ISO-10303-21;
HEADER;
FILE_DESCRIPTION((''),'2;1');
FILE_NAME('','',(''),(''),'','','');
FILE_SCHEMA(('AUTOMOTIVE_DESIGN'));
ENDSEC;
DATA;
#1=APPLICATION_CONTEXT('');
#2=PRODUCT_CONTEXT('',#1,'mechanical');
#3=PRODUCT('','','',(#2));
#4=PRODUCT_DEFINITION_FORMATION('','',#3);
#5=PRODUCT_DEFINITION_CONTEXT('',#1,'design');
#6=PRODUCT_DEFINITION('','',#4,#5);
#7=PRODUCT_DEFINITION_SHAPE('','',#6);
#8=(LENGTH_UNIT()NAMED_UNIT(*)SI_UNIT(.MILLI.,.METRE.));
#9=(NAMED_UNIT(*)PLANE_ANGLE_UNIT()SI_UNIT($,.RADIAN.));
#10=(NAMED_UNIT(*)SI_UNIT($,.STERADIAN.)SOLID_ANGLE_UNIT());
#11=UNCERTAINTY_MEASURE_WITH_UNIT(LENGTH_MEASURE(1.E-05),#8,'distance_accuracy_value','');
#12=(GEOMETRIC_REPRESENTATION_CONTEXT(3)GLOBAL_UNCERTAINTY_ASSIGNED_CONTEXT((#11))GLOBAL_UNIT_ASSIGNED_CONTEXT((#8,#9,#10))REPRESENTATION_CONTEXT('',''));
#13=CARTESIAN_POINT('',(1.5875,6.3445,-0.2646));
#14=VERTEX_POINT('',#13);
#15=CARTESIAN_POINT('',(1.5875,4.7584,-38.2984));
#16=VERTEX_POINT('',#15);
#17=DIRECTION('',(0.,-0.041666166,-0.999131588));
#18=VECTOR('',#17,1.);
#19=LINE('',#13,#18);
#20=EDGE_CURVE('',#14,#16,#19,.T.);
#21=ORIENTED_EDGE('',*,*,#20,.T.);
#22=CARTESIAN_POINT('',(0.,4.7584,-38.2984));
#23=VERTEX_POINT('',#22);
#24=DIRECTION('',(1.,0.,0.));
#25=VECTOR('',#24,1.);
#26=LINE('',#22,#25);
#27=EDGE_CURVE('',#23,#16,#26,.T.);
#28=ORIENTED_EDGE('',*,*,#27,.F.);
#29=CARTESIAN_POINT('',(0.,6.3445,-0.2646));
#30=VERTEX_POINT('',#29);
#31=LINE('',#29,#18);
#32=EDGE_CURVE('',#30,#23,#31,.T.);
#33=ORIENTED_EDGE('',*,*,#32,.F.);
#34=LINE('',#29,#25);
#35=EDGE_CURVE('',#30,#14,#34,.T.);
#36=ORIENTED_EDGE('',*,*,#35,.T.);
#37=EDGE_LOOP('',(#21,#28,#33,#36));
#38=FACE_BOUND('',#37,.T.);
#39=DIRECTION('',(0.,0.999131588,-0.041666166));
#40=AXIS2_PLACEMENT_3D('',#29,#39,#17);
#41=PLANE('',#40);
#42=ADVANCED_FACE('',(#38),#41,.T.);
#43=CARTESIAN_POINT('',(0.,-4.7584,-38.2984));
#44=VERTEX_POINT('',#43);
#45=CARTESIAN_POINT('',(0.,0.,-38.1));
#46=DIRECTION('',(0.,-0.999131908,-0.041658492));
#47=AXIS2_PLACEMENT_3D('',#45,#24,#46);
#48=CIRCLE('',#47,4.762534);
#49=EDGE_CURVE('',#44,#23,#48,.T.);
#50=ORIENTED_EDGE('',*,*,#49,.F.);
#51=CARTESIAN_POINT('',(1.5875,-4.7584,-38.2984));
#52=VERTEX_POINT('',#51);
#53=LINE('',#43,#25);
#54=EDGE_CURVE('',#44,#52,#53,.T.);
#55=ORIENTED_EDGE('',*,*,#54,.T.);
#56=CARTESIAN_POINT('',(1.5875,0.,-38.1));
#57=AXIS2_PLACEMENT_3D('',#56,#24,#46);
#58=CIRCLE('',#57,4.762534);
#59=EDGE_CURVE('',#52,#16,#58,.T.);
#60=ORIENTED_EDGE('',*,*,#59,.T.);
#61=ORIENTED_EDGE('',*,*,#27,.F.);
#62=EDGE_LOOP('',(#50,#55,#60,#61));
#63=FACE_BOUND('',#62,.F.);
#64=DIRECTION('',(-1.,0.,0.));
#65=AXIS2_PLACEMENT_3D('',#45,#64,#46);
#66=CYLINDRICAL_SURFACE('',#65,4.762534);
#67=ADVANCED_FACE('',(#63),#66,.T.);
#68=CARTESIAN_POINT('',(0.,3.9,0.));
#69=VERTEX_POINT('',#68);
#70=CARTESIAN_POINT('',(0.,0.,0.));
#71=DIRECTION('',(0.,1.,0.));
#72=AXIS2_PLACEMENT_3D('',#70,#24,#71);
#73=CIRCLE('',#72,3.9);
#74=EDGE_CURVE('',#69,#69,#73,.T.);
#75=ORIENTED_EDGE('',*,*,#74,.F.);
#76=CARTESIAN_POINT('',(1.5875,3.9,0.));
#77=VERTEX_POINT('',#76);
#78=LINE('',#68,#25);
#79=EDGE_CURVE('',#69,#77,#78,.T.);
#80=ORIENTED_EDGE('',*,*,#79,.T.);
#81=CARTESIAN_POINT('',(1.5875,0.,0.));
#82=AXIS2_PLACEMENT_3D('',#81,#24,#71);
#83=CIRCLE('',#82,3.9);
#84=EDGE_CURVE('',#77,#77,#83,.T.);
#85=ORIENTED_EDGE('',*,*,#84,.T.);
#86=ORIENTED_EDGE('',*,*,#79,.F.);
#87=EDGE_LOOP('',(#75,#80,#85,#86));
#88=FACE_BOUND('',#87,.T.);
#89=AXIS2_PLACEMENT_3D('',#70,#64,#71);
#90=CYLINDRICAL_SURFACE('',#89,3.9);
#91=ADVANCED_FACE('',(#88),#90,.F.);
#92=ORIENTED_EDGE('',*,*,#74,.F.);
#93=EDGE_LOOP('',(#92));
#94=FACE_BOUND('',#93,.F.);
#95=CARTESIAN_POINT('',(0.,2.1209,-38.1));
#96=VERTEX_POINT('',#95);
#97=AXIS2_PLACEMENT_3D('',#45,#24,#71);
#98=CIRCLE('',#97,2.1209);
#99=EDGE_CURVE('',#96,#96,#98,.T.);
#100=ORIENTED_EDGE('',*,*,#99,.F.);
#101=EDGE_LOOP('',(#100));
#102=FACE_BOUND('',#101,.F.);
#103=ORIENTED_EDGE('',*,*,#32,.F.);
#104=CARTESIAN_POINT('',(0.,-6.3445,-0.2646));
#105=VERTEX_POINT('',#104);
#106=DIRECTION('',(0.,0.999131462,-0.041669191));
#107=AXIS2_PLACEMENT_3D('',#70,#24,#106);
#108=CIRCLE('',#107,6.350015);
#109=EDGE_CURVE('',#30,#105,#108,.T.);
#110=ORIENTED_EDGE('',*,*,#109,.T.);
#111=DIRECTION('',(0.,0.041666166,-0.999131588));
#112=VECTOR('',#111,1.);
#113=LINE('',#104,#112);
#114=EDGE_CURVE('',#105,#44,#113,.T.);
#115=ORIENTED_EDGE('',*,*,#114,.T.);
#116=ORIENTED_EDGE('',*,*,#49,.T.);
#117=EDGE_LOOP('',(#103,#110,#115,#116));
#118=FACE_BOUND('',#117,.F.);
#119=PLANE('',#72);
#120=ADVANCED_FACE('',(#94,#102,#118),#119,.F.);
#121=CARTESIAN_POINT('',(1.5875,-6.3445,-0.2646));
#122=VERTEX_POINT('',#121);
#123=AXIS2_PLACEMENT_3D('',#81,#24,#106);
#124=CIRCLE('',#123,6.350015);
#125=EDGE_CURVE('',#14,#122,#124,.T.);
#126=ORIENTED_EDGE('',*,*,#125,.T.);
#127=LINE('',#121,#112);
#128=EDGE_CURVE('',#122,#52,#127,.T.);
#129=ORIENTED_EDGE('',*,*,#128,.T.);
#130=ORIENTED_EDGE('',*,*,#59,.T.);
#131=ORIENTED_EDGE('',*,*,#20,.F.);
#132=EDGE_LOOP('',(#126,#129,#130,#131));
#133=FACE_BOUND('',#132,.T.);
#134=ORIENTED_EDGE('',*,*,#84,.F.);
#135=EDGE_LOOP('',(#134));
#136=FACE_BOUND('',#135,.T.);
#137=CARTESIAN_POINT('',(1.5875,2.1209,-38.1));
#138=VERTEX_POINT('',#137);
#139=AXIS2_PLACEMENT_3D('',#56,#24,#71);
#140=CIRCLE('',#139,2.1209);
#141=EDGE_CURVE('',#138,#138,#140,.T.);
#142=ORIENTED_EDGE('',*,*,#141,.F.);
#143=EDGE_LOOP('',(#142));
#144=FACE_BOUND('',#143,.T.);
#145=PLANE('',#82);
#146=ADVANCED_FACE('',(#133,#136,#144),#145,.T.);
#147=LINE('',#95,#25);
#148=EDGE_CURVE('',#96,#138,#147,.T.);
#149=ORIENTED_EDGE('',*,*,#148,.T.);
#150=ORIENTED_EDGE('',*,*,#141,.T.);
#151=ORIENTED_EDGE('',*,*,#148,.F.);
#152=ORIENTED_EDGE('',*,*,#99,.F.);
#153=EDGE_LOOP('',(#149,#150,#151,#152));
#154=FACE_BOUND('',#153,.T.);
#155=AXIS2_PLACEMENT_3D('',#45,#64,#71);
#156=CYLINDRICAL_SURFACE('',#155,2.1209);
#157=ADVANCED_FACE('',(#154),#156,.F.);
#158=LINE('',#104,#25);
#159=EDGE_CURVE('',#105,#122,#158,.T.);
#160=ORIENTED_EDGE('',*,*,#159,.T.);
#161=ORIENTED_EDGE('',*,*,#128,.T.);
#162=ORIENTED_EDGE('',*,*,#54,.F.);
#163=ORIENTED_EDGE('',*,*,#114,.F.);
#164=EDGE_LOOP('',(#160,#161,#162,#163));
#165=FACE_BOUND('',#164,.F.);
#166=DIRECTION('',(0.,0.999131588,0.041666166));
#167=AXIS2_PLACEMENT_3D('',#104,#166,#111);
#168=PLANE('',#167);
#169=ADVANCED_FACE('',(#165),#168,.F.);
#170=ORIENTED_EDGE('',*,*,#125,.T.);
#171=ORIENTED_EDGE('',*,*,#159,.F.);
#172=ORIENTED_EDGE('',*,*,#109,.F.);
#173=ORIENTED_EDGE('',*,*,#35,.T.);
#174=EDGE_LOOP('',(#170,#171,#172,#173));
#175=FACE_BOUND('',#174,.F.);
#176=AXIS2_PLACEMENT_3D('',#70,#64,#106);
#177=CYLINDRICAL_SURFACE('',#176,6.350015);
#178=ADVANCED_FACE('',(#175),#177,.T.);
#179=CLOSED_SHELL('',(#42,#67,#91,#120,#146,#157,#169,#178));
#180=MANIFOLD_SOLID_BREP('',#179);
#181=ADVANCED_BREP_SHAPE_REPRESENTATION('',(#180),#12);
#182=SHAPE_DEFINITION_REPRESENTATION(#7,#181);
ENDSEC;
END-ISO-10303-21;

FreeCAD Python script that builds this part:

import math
import FreeCAD as App
import Part
import Sketcher
Q = App.Units.Quantity

doc = App.newDocument("Part")
body = doc.addObject("PartDesign::Body", "Body")

# Sketch on YZ plane
sketch1 = body.newObject("Sketcher::SketchObject", "Sketch")
sketch1.AttachmentSupport = (doc.getObject("YZ_Plane"), [""])
sketch1.MapMode = "FlatFace"
sketch1.addGeometry(Part.LineSegment(App.Vector(4.8, -38.3, 0), App.Vector(6.3, -0.3, 0)), False)
sketch1.addGeometry(Part.ArcOfCircle(Part.Circle(App.Vector(0, 0, 0), App.Vector(0, 0, 1), 6.4), math.radians(-2), math.radians(182)), False)
sketch1.addGeometry(Part.LineSegment(App.Vector(-6.3, -0.3, 0), App.Vector(-4.8, -38.3, 0)), False)
sketch1.addGeometry(Part.ArcOfCircle(Part.Circle(App.Vector(0, -38.1, 0), App.Vector(0, 0, 1), 4.8), math.radians(-178), math.radians(-2)), False)
sketch1.addGeometry(Part.Circle(App.Vector(0, -38.1, 0), App.Vector(0, 0, 1), 2.1), False)
sketch1.addGeometry(Part.Circle(App.Vector(0, 0, 0), App.Vector(0, 0, 1), 3.9), False)
sketch1.addConstraint(Sketcher.Constraint("Tangent", 0, 2, 1, 1))
sketch1.addConstraint(Sketcher.Constraint("Tangent", 1, 2, 2, 1))
sketch1.addConstraint(Sketcher.Constraint("Tangent", 2, 2, 3, 1))
sketch1.addConstraint(Sketcher.Constraint("Tangent", 3, 2, 0, 1))
sketch1.addConstraint(Sketcher.Constraint("Coincident", 1, 3, -1, 1))
sketch1.addConstraint(Sketcher.Constraint("Coincident", 5, 3, -1, 1))
sketch1.addConstraint(Sketcher.Constraint("Coincident", 4, 3, 3, 3))
sketch1.addConstraint(Sketcher.Constraint("PointOnObject", 3, 3, -2))
sketch1.addConstraint(Sketcher.Constraint("Diameter", 4, Q("0.167 in")))
sketch1.addConstraint(Sketcher.Constraint("Diameter", 5, 7.8))
sketch1.addConstraint(Sketcher.Constraint("Radius", 1, Q("0.25 in")))
sketch1.addConstraint(Sketcher.Constraint("Radius", 3, Q("0.1875 in")))
sketch1.addConstraint(Sketcher.Constraint("DistanceY", 3, 3, -1, 1, Q("1.5 in")))
pad1 = body.newObject("PartDesign::Pad", "Pad")
pad1.Profile = sketch1
pad1.Length = Q("0.0625 in")

doc.recompute()
